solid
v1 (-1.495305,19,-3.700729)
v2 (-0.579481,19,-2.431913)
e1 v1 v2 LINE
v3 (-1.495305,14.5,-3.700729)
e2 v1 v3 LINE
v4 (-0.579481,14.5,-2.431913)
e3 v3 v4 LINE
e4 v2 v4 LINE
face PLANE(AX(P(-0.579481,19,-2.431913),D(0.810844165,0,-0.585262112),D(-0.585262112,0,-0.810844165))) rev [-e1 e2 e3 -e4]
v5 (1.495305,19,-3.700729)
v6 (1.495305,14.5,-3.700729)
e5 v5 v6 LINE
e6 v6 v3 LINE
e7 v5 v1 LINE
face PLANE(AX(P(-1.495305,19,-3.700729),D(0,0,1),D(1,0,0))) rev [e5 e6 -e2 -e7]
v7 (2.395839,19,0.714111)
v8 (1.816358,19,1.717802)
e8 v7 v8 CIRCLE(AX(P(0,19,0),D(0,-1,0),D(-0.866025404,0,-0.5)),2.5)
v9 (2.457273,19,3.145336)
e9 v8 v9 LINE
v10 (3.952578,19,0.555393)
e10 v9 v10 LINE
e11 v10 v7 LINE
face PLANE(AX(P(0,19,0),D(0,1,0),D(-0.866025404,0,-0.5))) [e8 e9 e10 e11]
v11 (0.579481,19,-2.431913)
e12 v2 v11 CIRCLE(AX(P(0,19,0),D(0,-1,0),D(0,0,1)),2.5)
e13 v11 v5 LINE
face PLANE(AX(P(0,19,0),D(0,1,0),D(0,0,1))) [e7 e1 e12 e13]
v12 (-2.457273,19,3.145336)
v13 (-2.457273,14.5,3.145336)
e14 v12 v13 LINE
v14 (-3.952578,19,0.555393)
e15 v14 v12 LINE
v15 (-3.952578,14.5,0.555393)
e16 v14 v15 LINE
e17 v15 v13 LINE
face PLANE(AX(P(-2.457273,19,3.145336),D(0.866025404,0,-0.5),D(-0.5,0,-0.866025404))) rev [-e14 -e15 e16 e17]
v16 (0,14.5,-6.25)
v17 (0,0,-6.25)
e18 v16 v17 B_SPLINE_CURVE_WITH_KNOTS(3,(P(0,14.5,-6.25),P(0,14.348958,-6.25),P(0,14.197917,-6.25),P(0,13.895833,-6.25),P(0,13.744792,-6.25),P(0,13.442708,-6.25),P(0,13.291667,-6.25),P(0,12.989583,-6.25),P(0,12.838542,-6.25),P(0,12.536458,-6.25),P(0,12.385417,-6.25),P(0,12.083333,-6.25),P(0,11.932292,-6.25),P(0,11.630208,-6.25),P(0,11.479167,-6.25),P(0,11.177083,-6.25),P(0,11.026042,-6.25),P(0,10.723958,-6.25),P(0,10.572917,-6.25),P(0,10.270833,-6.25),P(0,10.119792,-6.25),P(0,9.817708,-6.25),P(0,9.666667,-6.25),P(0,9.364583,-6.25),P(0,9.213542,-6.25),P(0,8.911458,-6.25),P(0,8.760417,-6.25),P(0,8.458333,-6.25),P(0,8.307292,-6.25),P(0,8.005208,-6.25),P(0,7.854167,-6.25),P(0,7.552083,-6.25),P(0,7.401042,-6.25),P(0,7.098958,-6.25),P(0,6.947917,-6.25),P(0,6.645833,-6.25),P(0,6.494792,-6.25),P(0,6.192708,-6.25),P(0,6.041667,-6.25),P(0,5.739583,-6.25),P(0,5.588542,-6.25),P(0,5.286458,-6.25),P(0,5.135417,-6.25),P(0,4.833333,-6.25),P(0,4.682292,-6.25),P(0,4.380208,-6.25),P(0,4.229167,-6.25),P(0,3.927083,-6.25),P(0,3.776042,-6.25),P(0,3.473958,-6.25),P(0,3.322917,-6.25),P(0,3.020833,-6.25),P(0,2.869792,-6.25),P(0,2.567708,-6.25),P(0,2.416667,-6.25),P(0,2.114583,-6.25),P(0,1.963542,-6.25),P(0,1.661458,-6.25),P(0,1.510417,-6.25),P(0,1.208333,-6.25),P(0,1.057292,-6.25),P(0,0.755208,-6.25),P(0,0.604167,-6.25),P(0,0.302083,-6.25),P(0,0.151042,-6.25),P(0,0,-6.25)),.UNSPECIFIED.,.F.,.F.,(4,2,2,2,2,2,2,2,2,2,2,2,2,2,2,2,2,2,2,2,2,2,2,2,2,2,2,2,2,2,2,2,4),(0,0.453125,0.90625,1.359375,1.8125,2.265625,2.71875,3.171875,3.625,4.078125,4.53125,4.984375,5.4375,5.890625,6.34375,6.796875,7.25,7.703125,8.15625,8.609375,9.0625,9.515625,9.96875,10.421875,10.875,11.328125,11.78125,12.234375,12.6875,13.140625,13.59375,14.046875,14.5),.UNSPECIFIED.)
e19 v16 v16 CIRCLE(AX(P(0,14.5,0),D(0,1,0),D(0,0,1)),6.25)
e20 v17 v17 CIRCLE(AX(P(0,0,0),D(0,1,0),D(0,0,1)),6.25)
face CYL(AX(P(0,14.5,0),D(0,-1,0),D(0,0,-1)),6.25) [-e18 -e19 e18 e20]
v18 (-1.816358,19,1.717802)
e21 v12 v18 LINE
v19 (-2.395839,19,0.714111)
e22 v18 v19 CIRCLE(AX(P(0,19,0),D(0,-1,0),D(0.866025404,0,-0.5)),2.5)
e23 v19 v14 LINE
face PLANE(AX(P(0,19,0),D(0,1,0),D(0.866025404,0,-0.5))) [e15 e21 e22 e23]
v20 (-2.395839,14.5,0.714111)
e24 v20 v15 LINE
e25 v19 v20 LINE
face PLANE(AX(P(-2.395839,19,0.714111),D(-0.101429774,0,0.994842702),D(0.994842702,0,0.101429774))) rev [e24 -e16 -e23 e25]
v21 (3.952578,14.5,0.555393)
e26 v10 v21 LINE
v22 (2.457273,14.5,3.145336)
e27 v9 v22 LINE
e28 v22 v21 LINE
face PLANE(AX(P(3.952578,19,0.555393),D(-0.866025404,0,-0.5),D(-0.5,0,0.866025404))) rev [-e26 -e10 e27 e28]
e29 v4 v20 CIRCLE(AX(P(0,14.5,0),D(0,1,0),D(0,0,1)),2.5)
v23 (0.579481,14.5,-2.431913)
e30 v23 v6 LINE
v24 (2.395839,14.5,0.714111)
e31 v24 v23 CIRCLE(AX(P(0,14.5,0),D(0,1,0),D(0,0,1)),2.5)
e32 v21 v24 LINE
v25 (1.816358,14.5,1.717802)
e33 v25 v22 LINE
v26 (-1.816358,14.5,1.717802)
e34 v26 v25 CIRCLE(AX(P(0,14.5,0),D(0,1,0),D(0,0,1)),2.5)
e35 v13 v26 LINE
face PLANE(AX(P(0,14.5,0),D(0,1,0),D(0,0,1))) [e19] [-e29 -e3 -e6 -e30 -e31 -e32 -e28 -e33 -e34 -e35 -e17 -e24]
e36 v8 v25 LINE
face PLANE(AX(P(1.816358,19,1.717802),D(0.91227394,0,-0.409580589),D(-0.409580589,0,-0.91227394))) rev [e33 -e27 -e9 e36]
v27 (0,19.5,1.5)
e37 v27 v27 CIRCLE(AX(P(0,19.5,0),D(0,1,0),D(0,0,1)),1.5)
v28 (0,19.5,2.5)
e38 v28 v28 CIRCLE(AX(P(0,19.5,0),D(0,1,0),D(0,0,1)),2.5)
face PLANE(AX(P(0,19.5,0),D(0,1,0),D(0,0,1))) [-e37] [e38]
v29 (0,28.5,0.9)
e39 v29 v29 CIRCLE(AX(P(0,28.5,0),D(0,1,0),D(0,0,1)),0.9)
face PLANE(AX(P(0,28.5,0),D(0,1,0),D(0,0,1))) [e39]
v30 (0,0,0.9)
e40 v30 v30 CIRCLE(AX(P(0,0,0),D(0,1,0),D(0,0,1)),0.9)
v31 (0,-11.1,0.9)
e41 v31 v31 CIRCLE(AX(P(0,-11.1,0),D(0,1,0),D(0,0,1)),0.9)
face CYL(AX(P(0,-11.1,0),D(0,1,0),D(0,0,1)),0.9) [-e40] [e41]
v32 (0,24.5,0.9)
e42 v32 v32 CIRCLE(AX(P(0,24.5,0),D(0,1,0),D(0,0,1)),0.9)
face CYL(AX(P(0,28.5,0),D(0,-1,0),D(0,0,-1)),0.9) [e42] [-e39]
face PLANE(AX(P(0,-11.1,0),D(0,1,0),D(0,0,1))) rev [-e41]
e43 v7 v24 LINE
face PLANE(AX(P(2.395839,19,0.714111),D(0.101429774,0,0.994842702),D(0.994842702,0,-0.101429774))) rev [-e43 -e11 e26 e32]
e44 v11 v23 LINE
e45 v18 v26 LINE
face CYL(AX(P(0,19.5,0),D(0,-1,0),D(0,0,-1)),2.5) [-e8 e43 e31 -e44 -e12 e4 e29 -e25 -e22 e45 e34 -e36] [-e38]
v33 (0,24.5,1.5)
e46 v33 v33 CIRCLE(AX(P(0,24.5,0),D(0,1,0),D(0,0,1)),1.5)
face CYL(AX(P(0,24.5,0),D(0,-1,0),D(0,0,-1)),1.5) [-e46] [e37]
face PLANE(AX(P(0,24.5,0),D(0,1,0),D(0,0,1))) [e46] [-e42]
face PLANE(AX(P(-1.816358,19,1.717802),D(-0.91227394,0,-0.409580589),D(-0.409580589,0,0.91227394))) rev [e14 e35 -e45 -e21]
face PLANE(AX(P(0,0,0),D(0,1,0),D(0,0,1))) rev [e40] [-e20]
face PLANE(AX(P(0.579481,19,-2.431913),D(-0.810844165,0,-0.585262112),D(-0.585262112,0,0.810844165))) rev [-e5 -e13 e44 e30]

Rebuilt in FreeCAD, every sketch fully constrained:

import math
import FreeCAD as App
import Part
import Sketcher
from FreeCAD import Vector
Q = App.Units.Quantity

doc = App.newDocument("Part")
body = doc.addObject("PartDesign::Body", "Body")

# Sketch on XZ plane
sketch1 = body.newObject("Sketcher::SketchObject", "Sketch")
sketch1.AttachmentSupport = (doc.getObject("XZ_Plane"), [""])
sketch1.MapMode = "FlatFace"
sketch1.addGeometry(Part.Circle(Vector(0, 0, 0), Vector(0, 0, 1), 6), False)
sketch1.addConstraint(Sketcher.Constraint("Coincident", 0, 3, -1, 1))
sketch1.addConstraint(Sketcher.Constraint("Diameter", 0, Q("12.5 mm")))
pad1 = body.newObject("PartDesign::Pad", "Pad")
pad1.Profile = sketch1
pad1.Length = 14.5
pad1.Reversed = True

# Sketch on XZ plane
sketch2 = body.newObject("Sketcher::SketchObject", "Sketch001")
sketch2.AttachmentSupport = (doc.getObject("XZ_Plane"), [""])
sketch2.MapMode = "FlatFace"
sketch2.addGeometry(Part.Circle(Vector(0, 0, 0), Vector(0, 0, 1), 0.9), False)
sketch2.addConstraint(Sketcher.Constraint("Coincident", 0, 3, -1, 1))
sketch2.addConstraint(Sketcher.Constraint("Diameter", 0, Q("1.8 mm")))
pad2 = body.newObject("PartDesign::Pad", "Pad001")
pad2.Profile = sketch2
pad2.Length = 11.1

# Sketch on XZ plane
sketch3 = body.newObject("Sketcher::SketchObject", "Sketch002")
sketch3.AttachmentSupport = (doc.getObject("XZ_Plane"), [""])
sketch3.MapMode = "FlatFace"
sketch3.AttachmentOffset = App.Placement(Vector(0, 0, -14.5), App.Rotation())
sketch3.addGeometry(Part.Circle(Vector(0, 0, 0), Vector(0, 0, 1), 2.5), False)
sketch3.addConstraint(Sketcher.Constraint("Coincident", 0, 3, -1, 1))
sketch3.addConstraint(Sketcher.Constraint("Diameter", 0, Q("5 mm")))
pad3 = body.newObject("PartDesign::Pad", "Pad002")
pad3.Profile = sketch3
pad3.Length = 5
pad3.Reversed = True

# Sketch on XZ plane
sketch4 = body.newObject("Sketcher::SketchObject", "Sketch003")
sketch4.AttachmentSupport = (doc.getObject("XZ_Plane"), [""])
sketch4.MapMode = "FlatFace"
sketch4.AttachmentOffset = App.Placement(Vector(0, 0, -19.5), App.Rotation())
sketch4.addGeometry(Part.Circle(Vector(0, 0, 0), Vector(0, 0, 1), 1.5), False)
sketch4.addConstraint(Sketcher.Constraint("Coincident", 0, 3, -1, 1))
sketch4.addConstraint(Sketcher.Constraint("Diameter", 0, Q("3 mm")))
pad4 = body.newObject("PartDesign::Pad", "Pad003")
pad4.Profile = sketch4
pad4.Length = 5
pad4.Reversed = True

# Sketch on XZ plane
sketch5 = body.newObject("Sketcher::SketchObject", "Sketch004")
sketch5.AttachmentSupport = (doc.getObject("XZ_Plane"), [""])
sketch5.MapMode = "FlatFace"
sketch5.AttachmentOffset = App.Placement(Vector(0, 0, -28.5), App.Rotation())
sketch5.addGeometry(Part.Circle(Vector(0, 0, 0), Vector(0, 0, 1), 0.9), False)
sketch5.addConstraint(Sketcher.Constraint("Coincident", 0, 3, -1, 1))
sketch5.addConstraint(Sketcher.Constraint("Diameter", 0, Q("1.8 mm")))
pad5 = body.newObject("PartDesign::Pad", "Pad004")
pad5.Profile = sketch5
pad5.Length = 4

# Sketch on XZ plane
sketch6 = body.newObject("Sketcher::SketchObject", "Sketch005")
sketch6.AttachmentSupport = (doc.getObject("XZ_Plane"), [""])
sketch6.MapMode = "FlatFace"
sketch6.AttachmentOffset = App.Placement(Vector(0, 0, -14.5), App.Rotation())
sketch6.addGeometry(Part.LineSegment(Vector(-1.5, -3.7, 0), Vector(-0.6, -2.4, 0)), False)
sketch6.addGeometry(Part.ArcOfCircle(Part.Circle(Vector(0, 0, 0), Vector(0, 0, 1), 2.5), math.radians(-103), math.radians(-77)), False)
sketch6.addGeometry(Part.LineSegment(Vector(0.6, -2.4, 0), Vector(1.5, -3.7, 0)), False)
sketch6.addGeometry(Part.LineSegment(Vector(1.5, -3.7, 0), Vector(-1.5, -3.7, 0)), False)
sketch6.addConstraint(Sketcher.Constraint("Coincident", 0, 2, 1, 1))
sketch6.addConstraint(Sketcher.Constraint("Coincident", 1, 2, 2, 1))
sketch6.addConstraint(Sketcher.Constraint("Coincident", 2, 2, 3, 1))
sketch6.addConstraint(Sketcher.Constraint("Coincident", 3, 2, 0, 1))
sketch6.addConstraint(Sketcher.Constraint("Horizontal", 3))
sketch6.addConstraint(Sketcher.Constraint("Coincident", 1, 3, -1, 1))
sketch6.addConstraint(Sketcher.Constraint("Horizontal", 0, 2, 1, 2))
sketch6.addConstraint(Sketcher.Constraint("Equal", 0, 2))
sketch6.addConstraint(Sketcher.Constraint("Radius", 1, Q("2.5 mm")))
sketch6.addConstraint(Sketcher.Constraint("DistanceX", 3, 2, 3, 1, Q("2.990609 mm")))
sketch6.addConstraint(Sketcher.Constraint("Distance", 0, Q("1.564809 mm")))
sketch6.addConstraint(Sketcher.Constraint("DistanceX", 0, 2, -1, 1, Q("0.579481 mm")))
pad6 = body.newObject("PartDesign::Pad", "Pad005")
pad6.Profile = sketch6
pad6.Length = 4.5
pad6.Reversed = True
doc.recompute()

polarpattern = body.newObject("PartDesign::PolarPattern", "PolarPattern")
polarpattern.Originals = [pad6]
polarpattern.Axis = (doc.getObject("Y_Axis"), [""])
polarpattern.Angle = 360
polarpattern.Occurrences = 3
body.Tip = polarpattern

doc.recompute()
